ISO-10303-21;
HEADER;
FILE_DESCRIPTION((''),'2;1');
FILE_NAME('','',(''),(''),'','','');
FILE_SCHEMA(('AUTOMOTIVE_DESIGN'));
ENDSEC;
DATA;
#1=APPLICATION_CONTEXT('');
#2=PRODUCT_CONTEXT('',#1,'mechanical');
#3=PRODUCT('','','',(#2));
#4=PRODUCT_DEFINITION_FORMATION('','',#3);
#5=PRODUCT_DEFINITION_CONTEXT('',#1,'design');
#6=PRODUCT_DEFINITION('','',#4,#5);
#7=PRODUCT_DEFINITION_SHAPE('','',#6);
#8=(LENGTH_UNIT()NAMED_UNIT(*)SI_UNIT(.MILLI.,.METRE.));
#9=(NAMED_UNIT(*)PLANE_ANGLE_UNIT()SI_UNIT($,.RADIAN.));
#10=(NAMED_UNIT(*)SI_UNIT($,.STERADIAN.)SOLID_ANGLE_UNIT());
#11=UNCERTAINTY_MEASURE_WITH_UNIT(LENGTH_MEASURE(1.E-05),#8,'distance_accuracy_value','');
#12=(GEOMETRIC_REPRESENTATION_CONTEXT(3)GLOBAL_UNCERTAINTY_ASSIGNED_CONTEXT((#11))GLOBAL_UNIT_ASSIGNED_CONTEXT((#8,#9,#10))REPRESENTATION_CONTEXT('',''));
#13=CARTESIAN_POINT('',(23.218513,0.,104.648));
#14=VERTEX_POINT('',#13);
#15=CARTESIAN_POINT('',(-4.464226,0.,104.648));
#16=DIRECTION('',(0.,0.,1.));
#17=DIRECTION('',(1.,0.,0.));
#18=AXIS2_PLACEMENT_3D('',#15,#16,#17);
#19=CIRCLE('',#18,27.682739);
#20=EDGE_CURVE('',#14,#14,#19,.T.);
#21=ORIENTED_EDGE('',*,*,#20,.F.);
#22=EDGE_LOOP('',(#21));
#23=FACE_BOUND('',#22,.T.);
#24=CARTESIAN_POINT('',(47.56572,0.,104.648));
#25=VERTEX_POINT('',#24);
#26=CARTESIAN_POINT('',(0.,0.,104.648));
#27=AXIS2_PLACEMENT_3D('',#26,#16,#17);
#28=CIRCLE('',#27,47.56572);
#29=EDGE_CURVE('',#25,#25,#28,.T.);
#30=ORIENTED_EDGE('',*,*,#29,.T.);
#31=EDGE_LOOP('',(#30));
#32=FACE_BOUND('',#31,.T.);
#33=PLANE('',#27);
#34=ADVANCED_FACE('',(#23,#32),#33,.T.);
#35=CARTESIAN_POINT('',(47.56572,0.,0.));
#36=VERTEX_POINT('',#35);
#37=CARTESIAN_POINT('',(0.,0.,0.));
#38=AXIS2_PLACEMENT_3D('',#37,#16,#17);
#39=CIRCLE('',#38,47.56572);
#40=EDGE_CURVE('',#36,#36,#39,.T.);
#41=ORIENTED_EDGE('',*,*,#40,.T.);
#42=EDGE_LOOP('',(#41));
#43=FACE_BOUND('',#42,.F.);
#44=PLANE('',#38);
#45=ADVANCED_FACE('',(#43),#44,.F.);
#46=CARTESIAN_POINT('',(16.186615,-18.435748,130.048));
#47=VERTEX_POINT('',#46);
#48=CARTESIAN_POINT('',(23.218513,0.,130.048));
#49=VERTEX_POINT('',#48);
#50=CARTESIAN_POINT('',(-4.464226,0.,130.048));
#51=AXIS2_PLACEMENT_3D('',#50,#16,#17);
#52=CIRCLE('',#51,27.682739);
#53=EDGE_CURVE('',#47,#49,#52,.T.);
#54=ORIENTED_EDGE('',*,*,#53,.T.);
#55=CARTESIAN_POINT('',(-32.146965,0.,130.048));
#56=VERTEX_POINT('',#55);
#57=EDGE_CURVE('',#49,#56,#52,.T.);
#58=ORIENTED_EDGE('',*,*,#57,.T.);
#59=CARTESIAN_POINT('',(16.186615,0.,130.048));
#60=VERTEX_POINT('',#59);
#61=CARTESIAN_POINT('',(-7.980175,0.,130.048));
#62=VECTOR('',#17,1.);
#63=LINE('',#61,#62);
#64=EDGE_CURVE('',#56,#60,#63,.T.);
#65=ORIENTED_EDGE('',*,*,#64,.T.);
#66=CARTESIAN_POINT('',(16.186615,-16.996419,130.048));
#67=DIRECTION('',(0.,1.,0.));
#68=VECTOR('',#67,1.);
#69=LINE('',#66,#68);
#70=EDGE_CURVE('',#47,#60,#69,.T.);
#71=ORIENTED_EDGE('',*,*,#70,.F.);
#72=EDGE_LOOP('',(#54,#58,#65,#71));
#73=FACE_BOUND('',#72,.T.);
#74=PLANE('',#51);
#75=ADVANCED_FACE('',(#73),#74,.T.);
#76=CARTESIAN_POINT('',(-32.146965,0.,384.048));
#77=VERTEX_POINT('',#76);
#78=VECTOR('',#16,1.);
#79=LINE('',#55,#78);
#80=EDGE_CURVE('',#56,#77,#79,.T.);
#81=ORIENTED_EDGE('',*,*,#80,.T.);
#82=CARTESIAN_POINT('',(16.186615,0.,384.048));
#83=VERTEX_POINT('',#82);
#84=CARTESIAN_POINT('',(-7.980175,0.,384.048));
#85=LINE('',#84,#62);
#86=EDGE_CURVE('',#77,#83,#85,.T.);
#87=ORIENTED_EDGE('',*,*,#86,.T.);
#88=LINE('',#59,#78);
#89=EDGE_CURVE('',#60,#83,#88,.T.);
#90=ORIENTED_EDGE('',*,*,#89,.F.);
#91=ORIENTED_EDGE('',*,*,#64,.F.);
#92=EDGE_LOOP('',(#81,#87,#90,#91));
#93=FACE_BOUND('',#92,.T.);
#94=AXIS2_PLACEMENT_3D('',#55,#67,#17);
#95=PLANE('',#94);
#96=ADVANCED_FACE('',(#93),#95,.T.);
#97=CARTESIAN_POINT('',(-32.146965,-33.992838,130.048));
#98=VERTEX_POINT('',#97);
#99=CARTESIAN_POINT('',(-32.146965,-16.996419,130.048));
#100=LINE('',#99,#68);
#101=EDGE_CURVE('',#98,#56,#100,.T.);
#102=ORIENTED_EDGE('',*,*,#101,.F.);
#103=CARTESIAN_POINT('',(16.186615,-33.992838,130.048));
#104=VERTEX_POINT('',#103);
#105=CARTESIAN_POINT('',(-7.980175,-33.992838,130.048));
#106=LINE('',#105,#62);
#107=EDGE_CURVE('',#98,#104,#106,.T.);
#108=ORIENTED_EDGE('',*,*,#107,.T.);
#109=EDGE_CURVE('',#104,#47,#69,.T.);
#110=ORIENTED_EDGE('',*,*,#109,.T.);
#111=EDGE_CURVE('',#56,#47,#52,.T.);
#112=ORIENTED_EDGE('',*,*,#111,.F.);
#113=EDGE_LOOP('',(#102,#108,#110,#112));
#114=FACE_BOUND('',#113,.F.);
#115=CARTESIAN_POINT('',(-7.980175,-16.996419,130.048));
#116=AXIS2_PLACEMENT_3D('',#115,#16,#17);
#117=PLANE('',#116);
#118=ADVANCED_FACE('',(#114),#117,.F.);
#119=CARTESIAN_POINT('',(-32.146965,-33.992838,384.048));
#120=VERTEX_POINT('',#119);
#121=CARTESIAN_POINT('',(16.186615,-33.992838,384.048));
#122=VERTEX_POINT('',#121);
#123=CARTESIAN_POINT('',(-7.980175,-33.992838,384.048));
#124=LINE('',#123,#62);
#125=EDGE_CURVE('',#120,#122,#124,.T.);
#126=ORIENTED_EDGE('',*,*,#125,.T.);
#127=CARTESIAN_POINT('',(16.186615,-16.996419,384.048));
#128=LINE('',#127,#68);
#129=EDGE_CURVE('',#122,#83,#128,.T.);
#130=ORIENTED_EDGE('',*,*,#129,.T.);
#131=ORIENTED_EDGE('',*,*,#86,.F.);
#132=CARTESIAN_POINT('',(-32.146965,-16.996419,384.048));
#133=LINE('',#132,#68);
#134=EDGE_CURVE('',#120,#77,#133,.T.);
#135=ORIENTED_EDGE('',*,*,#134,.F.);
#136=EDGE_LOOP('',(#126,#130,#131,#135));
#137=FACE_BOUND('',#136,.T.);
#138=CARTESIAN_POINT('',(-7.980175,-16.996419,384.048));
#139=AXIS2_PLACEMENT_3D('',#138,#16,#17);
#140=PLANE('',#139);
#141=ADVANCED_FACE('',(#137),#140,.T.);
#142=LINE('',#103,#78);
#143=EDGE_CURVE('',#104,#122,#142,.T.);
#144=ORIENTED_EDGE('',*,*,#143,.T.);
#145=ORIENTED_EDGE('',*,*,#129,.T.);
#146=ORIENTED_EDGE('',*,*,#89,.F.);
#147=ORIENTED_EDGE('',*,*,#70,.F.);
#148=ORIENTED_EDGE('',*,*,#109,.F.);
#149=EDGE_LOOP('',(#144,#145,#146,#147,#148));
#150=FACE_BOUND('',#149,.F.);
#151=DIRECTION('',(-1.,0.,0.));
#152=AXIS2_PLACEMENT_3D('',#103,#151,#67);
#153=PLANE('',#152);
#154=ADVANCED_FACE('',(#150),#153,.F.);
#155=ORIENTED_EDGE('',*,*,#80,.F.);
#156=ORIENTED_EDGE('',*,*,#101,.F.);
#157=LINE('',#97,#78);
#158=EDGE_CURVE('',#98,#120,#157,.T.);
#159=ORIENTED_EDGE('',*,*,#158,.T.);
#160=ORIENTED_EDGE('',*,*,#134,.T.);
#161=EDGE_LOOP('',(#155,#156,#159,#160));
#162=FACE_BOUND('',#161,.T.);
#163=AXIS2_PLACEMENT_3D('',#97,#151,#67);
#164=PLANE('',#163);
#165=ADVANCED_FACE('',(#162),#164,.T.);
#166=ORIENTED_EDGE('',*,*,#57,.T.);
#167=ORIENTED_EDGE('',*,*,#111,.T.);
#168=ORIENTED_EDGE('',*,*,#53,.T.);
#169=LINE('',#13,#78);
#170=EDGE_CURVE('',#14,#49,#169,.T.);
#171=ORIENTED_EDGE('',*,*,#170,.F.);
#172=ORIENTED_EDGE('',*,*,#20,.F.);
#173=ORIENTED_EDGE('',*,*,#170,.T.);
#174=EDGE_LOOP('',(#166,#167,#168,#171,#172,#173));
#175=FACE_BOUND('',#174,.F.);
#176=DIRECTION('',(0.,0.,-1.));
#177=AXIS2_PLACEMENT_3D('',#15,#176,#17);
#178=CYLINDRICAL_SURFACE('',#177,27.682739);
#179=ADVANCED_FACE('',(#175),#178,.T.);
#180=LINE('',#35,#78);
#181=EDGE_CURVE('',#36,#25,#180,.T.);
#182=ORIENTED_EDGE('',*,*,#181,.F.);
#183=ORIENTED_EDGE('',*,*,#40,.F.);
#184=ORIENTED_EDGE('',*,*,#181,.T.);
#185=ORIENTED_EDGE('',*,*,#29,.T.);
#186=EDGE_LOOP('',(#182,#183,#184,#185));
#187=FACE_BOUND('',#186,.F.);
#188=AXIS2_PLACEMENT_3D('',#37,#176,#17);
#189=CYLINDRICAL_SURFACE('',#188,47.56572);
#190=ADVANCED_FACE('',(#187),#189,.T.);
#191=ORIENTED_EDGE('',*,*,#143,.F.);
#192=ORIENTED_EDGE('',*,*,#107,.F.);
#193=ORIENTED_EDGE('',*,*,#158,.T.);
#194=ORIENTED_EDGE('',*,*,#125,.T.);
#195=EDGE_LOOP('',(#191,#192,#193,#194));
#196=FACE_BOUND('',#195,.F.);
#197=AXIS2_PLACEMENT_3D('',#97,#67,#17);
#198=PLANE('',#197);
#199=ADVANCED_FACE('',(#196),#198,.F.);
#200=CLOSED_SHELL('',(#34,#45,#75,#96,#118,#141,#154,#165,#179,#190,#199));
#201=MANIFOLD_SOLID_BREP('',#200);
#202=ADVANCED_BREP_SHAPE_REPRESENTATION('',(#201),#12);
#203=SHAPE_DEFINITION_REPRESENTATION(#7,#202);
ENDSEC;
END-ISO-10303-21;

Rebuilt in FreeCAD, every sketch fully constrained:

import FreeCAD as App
import Part
import Sketcher
from FreeCAD import Vector
Q = App.Units.Quantity

doc = App.newDocument("Part")
body = doc.addObject("PartDesign::Body", "Body")

# Sketch on XY plane
sketch1 = doc.addObject("Sketcher::SketchObject", "Sketch")
body.addObject(sketch1)
sketch1.AttachmentSupport = (doc.XY_Plane, [""])
sketch1.MapMode = "FlatFace"
sketch1.addGeometry(Part.Circle(Vector(0, 0, 0), Vector(0, 0, 1), 48), False)
sketch1.addConstraint(Sketcher.Constraint("Coincident", 0, 3, -1, 1))
sketch1.addConstraint(Sketcher.Constraint("Diameter", 0, 95.13144))
pad1 = doc.addObject("PartDesign::Pad", "Pad")
body.addObject(pad1)
pad1.Profile = sketch1
pad1.Length = Q("4.12 in")

# Sketch on XY plane
sketch2 = doc.addObject("Sketcher::SketchObject", "Sketch001")
body.addObject(sketch2)
sketch2.AttachmentSupport = (doc.XY_Plane, [""])
sketch2.MapMode = "FlatFace"
sketch2.AttachmentOffset = App.Placement(Vector(0, 0, 4.12 * 25.4), App.Rotation())
sketch2.addGeometry(Part.Circle(Vector(-4, 0, 0), Vector(0, 0, 1), 28), False)
sketch2.addConstraint(Sketcher.Constraint("PointOnObject", 0, 3, -1))
sketch2.addConstraint(Sketcher.Constraint("Diameter", 0, 55.365478))
sketch2.addConstraint(Sketcher.Constraint("DistanceX", 0, 3, -1, 1, 4.464226))
pad2 = doc.addObject("PartDesign::Pad", "Pad001")
body.addObject(pad2)
pad2.Profile = sketch2
pad2.Length = Q("1 in")

# Sketch on XY plane
sketch3 = doc.addObject("Sketcher::SketchObject", "Sketch002")
body.addObject(sketch3)
sketch3.AttachmentSupport = (doc.XY_Plane, [""])
sketch3.MapMode = "FlatFace"
sketch3.AttachmentOffset = App.Placement(Vector(0, 0, 5.12 * 25.4), App.Rotation())
sketch3.addGeometry(Part.LineSegment(Vector(-32, 0, 0), Vector(-32, -34, 0)), False)
sketch3.addGeometry(Part.LineSegment(Vector(-32, -34, 0), Vector(16, -34, 0)), False)
sketch3.addGeometry(Part.LineSegment(Vector(16, -34, 0), Vector(16, 0, 0)), False)
sketch3.addGeometry(Part.LineSegment(Vector(16, 0, 0), Vector(-32, 0, 0)), False)
sketch3.addConstraint(Sketcher.Constraint("Coincident", 0, 2, 1, 1))
sketch3.addConstraint(Sketcher.Constraint("Coincident", 1, 2, 2, 1))
sketch3.addConstraint(Sketcher.Constraint("Coincident", 2, 2, 3, 1))
sketch3.addConstraint(Sketcher.Constraint("Coincident", 3, 2, 0, 1))
sketch3.addConstraint(Sketcher.Constraint("Vertical", 0))
sketch3.addConstraint(Sketcher.Constraint("Horizontal", 1))
sketch3.addConstraint(Sketcher.Constraint("Vertical", 2))
sketch3.addConstraint(Sketcher.Constraint("Horizontal", 3))
sketch3.addConstraint(Sketcher.Constraint("PointOnObject", 2, 2, -1))
sketch3.addConstraint(Sketcher.Constraint("DistanceX", 1, 1, 1, 2, 48.33358))
sketch3.addConstraint(Sketcher.Constraint("DistanceY", 0, 2, 0, 1, 33.992838))
sketch3.addConstraint(Sketcher.Constraint("DistanceX", 0, 2, -1, 1, 32.146965))
pad3 = doc.addObject("PartDesign::Pad", "Pad002")
body.addObject(pad3)
pad3.Profile = sketch3
pad3.Length = Q("10 in")

doc.recompute()
